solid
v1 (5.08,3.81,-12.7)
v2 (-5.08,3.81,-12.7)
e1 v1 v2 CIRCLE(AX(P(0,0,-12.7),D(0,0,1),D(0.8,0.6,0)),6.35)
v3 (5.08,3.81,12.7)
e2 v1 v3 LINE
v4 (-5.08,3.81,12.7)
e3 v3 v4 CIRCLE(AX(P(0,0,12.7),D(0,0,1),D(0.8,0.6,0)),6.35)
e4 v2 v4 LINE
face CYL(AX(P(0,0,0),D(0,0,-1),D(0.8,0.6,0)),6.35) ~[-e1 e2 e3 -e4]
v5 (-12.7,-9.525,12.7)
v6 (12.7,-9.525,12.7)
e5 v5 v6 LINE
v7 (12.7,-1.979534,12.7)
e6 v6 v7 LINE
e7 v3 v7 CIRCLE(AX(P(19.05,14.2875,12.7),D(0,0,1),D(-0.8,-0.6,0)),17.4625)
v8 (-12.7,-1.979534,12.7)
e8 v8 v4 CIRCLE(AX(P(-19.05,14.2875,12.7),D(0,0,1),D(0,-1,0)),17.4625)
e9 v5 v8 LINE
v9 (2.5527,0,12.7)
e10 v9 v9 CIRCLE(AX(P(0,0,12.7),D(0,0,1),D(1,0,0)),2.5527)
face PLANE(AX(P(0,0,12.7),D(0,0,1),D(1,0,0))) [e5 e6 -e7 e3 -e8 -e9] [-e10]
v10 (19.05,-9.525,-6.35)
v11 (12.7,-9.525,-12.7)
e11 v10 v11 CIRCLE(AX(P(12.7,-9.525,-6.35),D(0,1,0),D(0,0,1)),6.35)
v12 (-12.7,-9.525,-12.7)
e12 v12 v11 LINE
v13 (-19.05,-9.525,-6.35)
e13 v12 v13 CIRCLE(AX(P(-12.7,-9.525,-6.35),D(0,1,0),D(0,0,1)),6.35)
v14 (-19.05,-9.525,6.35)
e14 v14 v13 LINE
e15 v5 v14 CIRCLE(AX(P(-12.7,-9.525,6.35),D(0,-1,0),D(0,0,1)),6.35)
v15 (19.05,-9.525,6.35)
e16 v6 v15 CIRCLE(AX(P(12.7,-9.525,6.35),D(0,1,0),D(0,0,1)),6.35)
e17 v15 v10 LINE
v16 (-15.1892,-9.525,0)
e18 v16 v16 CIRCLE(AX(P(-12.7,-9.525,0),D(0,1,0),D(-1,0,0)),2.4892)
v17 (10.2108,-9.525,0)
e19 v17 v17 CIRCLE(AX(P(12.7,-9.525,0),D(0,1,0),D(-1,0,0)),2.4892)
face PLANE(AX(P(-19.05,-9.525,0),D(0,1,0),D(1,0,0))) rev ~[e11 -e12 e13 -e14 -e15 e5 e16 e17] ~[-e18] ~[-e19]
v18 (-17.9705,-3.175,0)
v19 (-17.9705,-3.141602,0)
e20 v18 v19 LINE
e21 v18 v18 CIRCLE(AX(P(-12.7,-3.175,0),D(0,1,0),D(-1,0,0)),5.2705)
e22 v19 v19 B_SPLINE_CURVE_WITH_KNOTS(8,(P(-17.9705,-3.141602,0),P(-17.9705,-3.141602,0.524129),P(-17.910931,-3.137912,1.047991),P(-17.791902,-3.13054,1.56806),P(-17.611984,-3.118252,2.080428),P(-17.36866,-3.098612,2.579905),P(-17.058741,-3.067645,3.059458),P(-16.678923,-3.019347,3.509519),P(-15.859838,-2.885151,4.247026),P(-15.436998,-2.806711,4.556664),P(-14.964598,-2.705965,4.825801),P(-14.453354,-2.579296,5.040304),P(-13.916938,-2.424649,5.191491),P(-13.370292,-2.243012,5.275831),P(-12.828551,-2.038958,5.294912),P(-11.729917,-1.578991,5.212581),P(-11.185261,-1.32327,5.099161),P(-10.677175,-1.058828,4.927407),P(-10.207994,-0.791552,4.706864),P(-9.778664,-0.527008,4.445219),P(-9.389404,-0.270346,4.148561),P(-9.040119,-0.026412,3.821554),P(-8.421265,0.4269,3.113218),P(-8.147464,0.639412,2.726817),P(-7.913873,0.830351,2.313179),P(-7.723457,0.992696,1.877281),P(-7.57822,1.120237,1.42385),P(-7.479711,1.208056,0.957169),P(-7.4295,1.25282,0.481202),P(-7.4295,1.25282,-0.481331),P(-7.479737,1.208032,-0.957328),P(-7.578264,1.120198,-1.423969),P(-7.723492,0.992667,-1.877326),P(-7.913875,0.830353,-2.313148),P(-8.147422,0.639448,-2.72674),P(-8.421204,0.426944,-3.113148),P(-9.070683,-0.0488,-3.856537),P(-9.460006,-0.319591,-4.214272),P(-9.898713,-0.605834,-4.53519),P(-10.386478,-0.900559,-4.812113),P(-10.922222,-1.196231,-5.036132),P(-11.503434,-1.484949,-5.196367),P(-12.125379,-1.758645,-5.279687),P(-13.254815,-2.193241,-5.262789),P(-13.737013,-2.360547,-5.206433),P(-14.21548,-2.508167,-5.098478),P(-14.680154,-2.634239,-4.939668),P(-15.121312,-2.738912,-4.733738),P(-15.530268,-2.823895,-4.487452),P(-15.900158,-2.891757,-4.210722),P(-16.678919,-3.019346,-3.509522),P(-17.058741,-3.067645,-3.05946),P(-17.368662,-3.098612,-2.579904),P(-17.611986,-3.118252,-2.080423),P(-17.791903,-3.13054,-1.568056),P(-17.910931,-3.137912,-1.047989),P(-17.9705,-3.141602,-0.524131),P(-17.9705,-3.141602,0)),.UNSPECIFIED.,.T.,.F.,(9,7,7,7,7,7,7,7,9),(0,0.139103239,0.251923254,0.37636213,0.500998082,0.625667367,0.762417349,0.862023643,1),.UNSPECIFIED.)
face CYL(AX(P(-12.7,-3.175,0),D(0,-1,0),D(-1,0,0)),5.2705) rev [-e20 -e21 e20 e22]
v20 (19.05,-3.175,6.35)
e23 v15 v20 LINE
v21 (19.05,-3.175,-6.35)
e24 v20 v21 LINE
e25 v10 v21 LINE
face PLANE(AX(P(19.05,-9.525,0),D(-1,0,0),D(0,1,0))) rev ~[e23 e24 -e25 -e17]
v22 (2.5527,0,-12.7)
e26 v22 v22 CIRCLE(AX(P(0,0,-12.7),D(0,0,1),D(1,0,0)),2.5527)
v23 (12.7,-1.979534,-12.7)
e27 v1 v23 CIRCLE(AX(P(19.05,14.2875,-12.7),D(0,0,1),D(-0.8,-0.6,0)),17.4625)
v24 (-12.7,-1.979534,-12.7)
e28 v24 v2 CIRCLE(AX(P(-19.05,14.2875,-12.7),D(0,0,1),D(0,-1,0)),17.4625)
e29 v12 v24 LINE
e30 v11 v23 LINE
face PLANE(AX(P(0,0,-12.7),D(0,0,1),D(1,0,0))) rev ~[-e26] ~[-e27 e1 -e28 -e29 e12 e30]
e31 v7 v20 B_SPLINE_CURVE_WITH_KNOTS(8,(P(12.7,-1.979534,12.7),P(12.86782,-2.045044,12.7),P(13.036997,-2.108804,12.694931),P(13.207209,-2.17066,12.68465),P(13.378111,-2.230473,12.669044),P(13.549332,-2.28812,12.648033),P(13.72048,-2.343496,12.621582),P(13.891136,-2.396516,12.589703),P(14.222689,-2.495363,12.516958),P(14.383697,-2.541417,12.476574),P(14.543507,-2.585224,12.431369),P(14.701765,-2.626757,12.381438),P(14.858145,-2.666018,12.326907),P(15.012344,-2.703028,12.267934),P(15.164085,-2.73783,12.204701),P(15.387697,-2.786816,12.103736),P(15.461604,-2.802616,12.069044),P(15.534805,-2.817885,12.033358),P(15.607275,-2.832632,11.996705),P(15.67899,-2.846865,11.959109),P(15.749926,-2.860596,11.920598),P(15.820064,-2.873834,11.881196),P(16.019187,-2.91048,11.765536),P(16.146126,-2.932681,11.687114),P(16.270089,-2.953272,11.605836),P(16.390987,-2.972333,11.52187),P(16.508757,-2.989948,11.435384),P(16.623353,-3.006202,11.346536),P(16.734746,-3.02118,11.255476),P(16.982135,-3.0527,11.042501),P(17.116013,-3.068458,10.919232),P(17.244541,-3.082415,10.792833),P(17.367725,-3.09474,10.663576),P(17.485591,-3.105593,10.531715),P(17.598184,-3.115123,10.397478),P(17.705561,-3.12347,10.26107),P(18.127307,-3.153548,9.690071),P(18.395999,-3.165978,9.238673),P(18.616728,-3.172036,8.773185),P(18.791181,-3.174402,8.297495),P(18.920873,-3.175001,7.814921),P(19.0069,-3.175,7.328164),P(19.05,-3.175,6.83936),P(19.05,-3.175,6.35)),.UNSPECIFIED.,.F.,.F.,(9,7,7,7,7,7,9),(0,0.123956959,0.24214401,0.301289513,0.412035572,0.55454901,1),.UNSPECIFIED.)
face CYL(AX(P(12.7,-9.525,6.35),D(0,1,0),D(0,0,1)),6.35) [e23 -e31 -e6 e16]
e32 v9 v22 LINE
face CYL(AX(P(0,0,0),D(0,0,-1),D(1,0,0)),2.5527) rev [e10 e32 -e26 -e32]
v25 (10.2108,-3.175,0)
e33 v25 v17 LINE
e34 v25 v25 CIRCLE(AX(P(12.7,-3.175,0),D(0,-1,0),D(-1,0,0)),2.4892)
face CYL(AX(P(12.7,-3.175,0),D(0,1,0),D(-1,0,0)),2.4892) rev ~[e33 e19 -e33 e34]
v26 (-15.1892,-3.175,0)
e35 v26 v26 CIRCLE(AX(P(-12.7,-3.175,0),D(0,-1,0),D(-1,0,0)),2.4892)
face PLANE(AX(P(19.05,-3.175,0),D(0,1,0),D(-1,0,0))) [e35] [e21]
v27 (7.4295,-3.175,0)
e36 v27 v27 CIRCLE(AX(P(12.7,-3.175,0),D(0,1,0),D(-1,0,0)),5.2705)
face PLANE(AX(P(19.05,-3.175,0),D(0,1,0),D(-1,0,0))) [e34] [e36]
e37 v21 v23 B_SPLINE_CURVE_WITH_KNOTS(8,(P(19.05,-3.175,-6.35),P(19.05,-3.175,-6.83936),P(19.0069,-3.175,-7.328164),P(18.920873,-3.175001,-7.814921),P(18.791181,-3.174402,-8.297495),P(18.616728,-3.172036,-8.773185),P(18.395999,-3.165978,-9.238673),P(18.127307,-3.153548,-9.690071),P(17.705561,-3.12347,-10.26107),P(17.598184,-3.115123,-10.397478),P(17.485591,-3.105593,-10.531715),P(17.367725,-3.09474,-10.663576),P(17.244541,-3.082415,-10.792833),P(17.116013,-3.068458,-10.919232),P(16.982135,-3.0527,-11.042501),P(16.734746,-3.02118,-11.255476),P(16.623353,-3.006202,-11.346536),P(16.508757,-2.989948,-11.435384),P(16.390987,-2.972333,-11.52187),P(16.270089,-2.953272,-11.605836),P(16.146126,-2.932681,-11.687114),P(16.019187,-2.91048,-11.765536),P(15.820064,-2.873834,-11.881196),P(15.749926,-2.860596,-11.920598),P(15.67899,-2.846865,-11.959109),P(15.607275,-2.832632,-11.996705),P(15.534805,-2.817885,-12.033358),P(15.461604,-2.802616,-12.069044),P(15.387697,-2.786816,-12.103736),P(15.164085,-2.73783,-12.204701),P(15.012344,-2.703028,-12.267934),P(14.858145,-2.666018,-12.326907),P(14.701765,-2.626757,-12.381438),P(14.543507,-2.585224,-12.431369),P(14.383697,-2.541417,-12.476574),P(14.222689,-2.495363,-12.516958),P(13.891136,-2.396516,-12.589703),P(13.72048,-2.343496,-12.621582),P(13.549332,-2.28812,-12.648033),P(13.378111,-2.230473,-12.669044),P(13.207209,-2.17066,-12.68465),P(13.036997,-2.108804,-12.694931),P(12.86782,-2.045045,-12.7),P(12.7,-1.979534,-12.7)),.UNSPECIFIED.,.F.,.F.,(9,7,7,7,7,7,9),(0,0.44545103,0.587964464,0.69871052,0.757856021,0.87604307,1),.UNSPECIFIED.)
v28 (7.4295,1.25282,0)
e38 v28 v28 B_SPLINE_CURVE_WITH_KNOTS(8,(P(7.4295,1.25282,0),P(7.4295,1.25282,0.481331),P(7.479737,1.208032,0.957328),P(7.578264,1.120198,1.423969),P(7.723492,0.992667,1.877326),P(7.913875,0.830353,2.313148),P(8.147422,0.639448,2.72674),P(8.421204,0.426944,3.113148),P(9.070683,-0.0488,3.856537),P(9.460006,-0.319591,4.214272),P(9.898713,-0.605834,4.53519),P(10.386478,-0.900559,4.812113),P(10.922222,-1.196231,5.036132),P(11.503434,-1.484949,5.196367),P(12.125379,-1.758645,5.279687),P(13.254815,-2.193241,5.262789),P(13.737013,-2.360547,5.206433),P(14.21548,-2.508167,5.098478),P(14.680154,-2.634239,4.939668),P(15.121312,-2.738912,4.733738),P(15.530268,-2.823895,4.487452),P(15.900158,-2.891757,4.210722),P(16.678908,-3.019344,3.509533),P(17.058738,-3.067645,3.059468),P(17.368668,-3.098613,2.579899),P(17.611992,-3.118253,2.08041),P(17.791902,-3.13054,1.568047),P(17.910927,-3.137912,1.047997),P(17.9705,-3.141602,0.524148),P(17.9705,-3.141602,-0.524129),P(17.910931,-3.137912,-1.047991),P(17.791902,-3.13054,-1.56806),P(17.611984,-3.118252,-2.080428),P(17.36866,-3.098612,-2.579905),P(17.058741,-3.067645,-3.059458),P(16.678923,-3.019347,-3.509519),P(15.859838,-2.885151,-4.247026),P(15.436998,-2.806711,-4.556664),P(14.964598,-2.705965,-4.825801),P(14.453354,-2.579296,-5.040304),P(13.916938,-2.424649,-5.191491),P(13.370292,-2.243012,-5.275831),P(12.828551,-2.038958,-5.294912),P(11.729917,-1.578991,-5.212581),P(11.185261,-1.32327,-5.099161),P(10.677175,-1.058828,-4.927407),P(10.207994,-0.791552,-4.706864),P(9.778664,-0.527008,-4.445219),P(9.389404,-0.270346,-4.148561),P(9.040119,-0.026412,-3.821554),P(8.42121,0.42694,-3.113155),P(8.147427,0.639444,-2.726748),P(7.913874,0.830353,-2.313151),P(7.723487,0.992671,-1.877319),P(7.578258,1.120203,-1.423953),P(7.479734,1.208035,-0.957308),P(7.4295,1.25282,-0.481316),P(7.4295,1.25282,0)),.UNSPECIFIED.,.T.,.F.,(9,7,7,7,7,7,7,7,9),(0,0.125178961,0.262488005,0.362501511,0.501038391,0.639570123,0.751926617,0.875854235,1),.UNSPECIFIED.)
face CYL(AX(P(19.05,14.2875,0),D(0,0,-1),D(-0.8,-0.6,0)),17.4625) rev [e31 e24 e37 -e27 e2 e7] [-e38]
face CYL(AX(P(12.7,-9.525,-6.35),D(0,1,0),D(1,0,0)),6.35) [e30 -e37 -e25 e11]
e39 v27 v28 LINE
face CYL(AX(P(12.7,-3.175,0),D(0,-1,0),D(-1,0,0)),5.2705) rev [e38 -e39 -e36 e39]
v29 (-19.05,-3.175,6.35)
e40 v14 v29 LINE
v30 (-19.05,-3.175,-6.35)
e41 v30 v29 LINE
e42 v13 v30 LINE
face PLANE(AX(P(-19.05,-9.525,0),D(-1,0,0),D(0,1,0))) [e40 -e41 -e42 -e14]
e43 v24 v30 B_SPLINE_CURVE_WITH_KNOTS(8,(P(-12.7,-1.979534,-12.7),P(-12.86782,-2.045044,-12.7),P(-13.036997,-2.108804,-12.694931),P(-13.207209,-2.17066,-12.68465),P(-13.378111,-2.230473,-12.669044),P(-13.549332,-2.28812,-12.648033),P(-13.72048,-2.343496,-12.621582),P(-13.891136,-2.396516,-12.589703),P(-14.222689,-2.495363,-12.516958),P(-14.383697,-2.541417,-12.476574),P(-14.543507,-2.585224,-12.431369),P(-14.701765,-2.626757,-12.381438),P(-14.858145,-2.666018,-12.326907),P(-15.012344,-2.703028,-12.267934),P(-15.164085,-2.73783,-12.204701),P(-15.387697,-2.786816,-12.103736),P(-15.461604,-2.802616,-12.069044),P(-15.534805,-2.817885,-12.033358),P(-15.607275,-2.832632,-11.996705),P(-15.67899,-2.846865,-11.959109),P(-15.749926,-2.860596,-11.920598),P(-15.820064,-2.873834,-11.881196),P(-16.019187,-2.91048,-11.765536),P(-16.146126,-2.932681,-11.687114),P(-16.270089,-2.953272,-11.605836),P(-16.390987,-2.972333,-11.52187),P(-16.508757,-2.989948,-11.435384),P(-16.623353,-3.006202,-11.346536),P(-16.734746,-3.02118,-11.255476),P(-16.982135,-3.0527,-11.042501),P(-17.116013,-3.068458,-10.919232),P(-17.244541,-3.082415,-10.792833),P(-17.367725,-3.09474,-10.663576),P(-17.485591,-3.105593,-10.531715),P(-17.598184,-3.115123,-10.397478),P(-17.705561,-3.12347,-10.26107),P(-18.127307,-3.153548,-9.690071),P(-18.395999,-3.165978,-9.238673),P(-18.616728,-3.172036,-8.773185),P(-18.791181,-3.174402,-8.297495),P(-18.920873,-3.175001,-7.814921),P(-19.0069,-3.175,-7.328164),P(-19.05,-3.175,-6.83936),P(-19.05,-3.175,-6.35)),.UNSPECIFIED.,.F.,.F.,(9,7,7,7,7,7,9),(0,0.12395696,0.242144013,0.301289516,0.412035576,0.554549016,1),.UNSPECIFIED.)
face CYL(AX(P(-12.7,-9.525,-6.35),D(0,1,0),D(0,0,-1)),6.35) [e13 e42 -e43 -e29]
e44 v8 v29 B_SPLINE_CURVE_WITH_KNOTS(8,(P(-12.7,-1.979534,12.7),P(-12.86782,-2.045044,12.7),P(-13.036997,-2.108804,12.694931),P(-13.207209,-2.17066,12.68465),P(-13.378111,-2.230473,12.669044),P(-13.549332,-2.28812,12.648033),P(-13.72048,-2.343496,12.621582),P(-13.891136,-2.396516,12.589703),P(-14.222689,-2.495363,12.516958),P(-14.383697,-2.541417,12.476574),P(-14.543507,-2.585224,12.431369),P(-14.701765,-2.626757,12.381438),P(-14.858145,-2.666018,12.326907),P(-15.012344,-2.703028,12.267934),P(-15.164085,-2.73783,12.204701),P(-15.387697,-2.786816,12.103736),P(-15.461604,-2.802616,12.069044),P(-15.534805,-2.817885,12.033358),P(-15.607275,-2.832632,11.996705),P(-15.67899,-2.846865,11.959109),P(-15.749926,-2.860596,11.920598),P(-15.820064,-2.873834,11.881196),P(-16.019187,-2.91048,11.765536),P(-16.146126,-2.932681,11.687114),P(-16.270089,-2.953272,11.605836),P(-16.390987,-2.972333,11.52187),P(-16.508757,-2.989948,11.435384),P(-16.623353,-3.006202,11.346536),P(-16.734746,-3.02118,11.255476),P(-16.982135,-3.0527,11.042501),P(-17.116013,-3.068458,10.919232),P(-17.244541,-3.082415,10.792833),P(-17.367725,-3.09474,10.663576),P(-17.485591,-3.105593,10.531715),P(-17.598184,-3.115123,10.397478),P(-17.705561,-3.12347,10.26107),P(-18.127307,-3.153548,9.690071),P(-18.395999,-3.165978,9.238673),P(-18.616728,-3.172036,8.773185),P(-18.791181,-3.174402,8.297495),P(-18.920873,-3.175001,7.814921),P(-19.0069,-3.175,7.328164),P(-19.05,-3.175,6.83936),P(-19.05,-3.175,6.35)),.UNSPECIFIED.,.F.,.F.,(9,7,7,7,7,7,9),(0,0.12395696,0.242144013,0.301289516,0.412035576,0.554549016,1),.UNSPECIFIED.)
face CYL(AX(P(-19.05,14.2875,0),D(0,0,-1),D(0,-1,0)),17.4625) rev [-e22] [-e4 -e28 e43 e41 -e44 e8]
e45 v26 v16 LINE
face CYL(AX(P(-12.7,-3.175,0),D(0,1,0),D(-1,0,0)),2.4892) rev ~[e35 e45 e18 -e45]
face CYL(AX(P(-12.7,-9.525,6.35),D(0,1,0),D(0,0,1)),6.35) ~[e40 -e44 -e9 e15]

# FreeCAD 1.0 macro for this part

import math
import FreeCAD as App
import Part
import Sketcher
from FreeCAD import Vector
Q = App.Units.Quantity


def edges_at(feature, points):
    """Names of the edges that pass closest to the given points."""
    edges = feature.Shape.Edges
    near = lambda p: min(range(len(edges)), key=lambda i: edges[i].distToShape(Part.Vertex(*p))[0])
    return sorted({f"Edge{near(p) + 1}" for p in points})

doc = App.newDocument("Part")
body = doc.addObject("PartDesign::Body", "Body")

# Sketch on XY plane
sketch1 = doc.addObject("Sketcher::SketchObject", "Sketch")
body.addObject(sketch1)
sketch1.AttachmentSupport = (doc.XY_Plane, [""])
sketch1.MapMode = "FlatFace"
sketch1.addGeometry(Part.ArcOfCircle(Part.Circle(Vector(19.05, 14.2875, 0), Vector(0, 0, 1), 17.4625), math.radians(-143.130102), math.radians(-90)), False)
sketch1.addGeometry(Part.ArcOfCircle(Part.Circle(Vector(0, 0, 0), Vector(0, 0, 1), 6.35), math.radians(36.869898), math.radians(143.130102)), False)
sketch1.addGeometry(Part.ArcOfCircle(Part.Circle(Vector(-19.05, 14.2875, 0), Vector(0, 0, 1), 17.4625), math.radians(-90), math.radians(-36.869898)), False)
sketch1.addGeometry(Part.LineSegment(Vector(-19.05, -3.175, 0), Vector(-19.05, -9.525, 0)), False)
sketch1.addGeometry(Part.LineSegment(Vector(-19.05, -9.525, 0), Vector(19.05, -9.525, 0)), False)
sketch1.addGeometry(Part.LineSegment(Vector(19.05, -9.525, 0), Vector(19.05, -3.175, 0)), False)
sketch1.addGeometry(Part.Circle(Vector(0, 0, 0), Vector(0, 0, 1), 2.5527), False)
sketch1.addConstraint(Sketcher.Constraint("Tangent", 0, 1, 1, 1))
sketch1.addConstraint(Sketcher.Constraint("Tangent", 1, 2, 2, 2))
sketch1.addConstraint(Sketcher.Constraint("Coincident", 2, 1, 3, 1))
sketch1.addConstraint(Sketcher.Constraint("Coincident", 3, 2, 4, 1))
sketch1.addConstraint(Sketcher.Constraint("Coincident", 4, 2, 5, 1))
sketch1.addConstraint(Sketcher.Constraint("Coincident", 5, 2, 0, 2))
sketch1.addConstraint(Sketcher.Constraint("Vertical", 3))
sketch1.addConstraint(Sketcher.Constraint("Horizontal", 4))
sketch1.addConstraint(Sketcher.Constraint("Vertical", 5))
sketch1.addConstraint(Sketcher.Constraint("Coincident", 1, 3, -1, 1))
sketch1.addConstraint(Sketcher.Constraint("Coincident", 6, 3, -1, 1))
sketch1.addConstraint(Sketcher.Constraint("Equal", 0, 2))
sketch1.addConstraint(Sketcher.Constraint("Symmetric", 2, 1, 5, 2, -2))
sketch1.addConstraint(Sketcher.Constraint("Vertical", 0, 3, 4, 2))
sketch1.addConstraint(Sketcher.Constraint("Radius", 1, Q("0.25 in")))
sketch1.addConstraint(Sketcher.Constraint("Diameter", 6, Q("0.201 in")))
sketch1.addConstraint(Sketcher.Constraint("DistanceX", 4, 1, 4, 2, Q("1.5 in")))
sketch1.addConstraint(Sketcher.Constraint("DistanceY", 3, 2, 3, 1, Q("0.25 in")))
sketch1.addConstraint(Sketcher.Constraint("Radius", 0, Q("0.6875 in")))
pad1 = doc.addObject("PartDesign::Pad", "Pad")
body.addObject(pad1)
pad1.Profile = sketch1
pad1.Length = Q("1 in")
pad1.Midplane = True

# Sketch on XZ plane
sketch2 = doc.addObject("Sketcher::SketchObject", "Sketch001")
body.addObject(sketch2)
sketch2.AttachmentSupport = (doc.XZ_Plane, [""])
sketch2.MapMode = "FlatFace"
sketch2.AttachmentOffset = App.Placement(Vector(0, 0, 0.125 * 25.4), App.Rotation())
sketch2.addGeometry(Part.Circle(Vector(-12.7, 0, 0), Vector(0, 0, 1), 2.4892), False)
sketch2.addGeometry(Part.Circle(Vector(12.7, 0, 0), Vector(0, 0, 1), 2.4892), False)
sketch2.addConstraint(Sketcher.Constraint("Equal", 0, 1))
sketch2.addConstraint(Sketcher.Constraint("Symmetric", 0, 3, 1, 3, -1, 1))
sketch2.addConstraint(Sketcher.Constraint("PointOnObject", 0, 3, -1))
sketch2.addConstraint(Sketcher.Constraint("Diameter", 0, Q("0.196 in")))
sketch2.addConstraint(Sketcher.Constraint("DistanceX", 0, 3, 1, 3, Q("1 in")))
pocket1 = doc.addObject("PartDesign::Pocket", "Pocket")
body.addObject(pocket1)
pocket1.Profile = sketch2
pocket1.Type = "ThroughAll"
pocket1.Reversed = True

# Sketch on XZ plane
sketch3 = doc.addObject("Sketcher::SketchObject", "Sketch002")
body.addObject(sketch3)
sketch3.AttachmentSupport = (doc.XZ_Plane, [""])
sketch3.MapMode = "FlatFace"
sketch3.AttachmentOffset = App.Placement(Vector(0, 0, 0.125 * 25.4), App.Rotation())
sketch3.addGeometry(Part.Circle(Vector(-12.7, 0, 0), Vector(0, 0, 1), 5.2705), False)
sketch3.addGeometry(Part.Circle(Vector(12.7, 0, 0), Vector(0, 0, 1), 5.2705), False)
sketch3.addConstraint(Sketcher.Constraint("Equal", 0, 1))
sketch3.addConstraint(Sketcher.Constraint("Symmetric", 0, 3, 1, 3, -1, 1))
sketch3.addConstraint(Sketcher.Constraint("PointOnObject", 0, 3, -1))
sketch3.addConstraint(Sketcher.Constraint("Diameter", 0, Q("0.415 in")))
sketch3.addConstraint(Sketcher.Constraint("DistanceX", 0, 3, 1, 3, Q("1 in")))
pocket2 = doc.addObject("PartDesign::Pocket", "Pocket001")
body.addObject(pocket2)
pocket2.Profile = sketch3
pocket2.Length = Q("1 in")
doc.recompute()

fillet = doc.addObject("PartDesign::Fillet", "Fillet")
body.addObject(fillet)
fillet.Base = (pocket2, edges_at(pocket2, [
    (-19.05, -6.35, 12.7),
    (-19.05, -6.35, -12.7),
    (19.05, -6.35, 12.7),
    (19.05, -6.35, -12.7),
]))
fillet.Radius = Q("0.25 in")

doc.recompute()
